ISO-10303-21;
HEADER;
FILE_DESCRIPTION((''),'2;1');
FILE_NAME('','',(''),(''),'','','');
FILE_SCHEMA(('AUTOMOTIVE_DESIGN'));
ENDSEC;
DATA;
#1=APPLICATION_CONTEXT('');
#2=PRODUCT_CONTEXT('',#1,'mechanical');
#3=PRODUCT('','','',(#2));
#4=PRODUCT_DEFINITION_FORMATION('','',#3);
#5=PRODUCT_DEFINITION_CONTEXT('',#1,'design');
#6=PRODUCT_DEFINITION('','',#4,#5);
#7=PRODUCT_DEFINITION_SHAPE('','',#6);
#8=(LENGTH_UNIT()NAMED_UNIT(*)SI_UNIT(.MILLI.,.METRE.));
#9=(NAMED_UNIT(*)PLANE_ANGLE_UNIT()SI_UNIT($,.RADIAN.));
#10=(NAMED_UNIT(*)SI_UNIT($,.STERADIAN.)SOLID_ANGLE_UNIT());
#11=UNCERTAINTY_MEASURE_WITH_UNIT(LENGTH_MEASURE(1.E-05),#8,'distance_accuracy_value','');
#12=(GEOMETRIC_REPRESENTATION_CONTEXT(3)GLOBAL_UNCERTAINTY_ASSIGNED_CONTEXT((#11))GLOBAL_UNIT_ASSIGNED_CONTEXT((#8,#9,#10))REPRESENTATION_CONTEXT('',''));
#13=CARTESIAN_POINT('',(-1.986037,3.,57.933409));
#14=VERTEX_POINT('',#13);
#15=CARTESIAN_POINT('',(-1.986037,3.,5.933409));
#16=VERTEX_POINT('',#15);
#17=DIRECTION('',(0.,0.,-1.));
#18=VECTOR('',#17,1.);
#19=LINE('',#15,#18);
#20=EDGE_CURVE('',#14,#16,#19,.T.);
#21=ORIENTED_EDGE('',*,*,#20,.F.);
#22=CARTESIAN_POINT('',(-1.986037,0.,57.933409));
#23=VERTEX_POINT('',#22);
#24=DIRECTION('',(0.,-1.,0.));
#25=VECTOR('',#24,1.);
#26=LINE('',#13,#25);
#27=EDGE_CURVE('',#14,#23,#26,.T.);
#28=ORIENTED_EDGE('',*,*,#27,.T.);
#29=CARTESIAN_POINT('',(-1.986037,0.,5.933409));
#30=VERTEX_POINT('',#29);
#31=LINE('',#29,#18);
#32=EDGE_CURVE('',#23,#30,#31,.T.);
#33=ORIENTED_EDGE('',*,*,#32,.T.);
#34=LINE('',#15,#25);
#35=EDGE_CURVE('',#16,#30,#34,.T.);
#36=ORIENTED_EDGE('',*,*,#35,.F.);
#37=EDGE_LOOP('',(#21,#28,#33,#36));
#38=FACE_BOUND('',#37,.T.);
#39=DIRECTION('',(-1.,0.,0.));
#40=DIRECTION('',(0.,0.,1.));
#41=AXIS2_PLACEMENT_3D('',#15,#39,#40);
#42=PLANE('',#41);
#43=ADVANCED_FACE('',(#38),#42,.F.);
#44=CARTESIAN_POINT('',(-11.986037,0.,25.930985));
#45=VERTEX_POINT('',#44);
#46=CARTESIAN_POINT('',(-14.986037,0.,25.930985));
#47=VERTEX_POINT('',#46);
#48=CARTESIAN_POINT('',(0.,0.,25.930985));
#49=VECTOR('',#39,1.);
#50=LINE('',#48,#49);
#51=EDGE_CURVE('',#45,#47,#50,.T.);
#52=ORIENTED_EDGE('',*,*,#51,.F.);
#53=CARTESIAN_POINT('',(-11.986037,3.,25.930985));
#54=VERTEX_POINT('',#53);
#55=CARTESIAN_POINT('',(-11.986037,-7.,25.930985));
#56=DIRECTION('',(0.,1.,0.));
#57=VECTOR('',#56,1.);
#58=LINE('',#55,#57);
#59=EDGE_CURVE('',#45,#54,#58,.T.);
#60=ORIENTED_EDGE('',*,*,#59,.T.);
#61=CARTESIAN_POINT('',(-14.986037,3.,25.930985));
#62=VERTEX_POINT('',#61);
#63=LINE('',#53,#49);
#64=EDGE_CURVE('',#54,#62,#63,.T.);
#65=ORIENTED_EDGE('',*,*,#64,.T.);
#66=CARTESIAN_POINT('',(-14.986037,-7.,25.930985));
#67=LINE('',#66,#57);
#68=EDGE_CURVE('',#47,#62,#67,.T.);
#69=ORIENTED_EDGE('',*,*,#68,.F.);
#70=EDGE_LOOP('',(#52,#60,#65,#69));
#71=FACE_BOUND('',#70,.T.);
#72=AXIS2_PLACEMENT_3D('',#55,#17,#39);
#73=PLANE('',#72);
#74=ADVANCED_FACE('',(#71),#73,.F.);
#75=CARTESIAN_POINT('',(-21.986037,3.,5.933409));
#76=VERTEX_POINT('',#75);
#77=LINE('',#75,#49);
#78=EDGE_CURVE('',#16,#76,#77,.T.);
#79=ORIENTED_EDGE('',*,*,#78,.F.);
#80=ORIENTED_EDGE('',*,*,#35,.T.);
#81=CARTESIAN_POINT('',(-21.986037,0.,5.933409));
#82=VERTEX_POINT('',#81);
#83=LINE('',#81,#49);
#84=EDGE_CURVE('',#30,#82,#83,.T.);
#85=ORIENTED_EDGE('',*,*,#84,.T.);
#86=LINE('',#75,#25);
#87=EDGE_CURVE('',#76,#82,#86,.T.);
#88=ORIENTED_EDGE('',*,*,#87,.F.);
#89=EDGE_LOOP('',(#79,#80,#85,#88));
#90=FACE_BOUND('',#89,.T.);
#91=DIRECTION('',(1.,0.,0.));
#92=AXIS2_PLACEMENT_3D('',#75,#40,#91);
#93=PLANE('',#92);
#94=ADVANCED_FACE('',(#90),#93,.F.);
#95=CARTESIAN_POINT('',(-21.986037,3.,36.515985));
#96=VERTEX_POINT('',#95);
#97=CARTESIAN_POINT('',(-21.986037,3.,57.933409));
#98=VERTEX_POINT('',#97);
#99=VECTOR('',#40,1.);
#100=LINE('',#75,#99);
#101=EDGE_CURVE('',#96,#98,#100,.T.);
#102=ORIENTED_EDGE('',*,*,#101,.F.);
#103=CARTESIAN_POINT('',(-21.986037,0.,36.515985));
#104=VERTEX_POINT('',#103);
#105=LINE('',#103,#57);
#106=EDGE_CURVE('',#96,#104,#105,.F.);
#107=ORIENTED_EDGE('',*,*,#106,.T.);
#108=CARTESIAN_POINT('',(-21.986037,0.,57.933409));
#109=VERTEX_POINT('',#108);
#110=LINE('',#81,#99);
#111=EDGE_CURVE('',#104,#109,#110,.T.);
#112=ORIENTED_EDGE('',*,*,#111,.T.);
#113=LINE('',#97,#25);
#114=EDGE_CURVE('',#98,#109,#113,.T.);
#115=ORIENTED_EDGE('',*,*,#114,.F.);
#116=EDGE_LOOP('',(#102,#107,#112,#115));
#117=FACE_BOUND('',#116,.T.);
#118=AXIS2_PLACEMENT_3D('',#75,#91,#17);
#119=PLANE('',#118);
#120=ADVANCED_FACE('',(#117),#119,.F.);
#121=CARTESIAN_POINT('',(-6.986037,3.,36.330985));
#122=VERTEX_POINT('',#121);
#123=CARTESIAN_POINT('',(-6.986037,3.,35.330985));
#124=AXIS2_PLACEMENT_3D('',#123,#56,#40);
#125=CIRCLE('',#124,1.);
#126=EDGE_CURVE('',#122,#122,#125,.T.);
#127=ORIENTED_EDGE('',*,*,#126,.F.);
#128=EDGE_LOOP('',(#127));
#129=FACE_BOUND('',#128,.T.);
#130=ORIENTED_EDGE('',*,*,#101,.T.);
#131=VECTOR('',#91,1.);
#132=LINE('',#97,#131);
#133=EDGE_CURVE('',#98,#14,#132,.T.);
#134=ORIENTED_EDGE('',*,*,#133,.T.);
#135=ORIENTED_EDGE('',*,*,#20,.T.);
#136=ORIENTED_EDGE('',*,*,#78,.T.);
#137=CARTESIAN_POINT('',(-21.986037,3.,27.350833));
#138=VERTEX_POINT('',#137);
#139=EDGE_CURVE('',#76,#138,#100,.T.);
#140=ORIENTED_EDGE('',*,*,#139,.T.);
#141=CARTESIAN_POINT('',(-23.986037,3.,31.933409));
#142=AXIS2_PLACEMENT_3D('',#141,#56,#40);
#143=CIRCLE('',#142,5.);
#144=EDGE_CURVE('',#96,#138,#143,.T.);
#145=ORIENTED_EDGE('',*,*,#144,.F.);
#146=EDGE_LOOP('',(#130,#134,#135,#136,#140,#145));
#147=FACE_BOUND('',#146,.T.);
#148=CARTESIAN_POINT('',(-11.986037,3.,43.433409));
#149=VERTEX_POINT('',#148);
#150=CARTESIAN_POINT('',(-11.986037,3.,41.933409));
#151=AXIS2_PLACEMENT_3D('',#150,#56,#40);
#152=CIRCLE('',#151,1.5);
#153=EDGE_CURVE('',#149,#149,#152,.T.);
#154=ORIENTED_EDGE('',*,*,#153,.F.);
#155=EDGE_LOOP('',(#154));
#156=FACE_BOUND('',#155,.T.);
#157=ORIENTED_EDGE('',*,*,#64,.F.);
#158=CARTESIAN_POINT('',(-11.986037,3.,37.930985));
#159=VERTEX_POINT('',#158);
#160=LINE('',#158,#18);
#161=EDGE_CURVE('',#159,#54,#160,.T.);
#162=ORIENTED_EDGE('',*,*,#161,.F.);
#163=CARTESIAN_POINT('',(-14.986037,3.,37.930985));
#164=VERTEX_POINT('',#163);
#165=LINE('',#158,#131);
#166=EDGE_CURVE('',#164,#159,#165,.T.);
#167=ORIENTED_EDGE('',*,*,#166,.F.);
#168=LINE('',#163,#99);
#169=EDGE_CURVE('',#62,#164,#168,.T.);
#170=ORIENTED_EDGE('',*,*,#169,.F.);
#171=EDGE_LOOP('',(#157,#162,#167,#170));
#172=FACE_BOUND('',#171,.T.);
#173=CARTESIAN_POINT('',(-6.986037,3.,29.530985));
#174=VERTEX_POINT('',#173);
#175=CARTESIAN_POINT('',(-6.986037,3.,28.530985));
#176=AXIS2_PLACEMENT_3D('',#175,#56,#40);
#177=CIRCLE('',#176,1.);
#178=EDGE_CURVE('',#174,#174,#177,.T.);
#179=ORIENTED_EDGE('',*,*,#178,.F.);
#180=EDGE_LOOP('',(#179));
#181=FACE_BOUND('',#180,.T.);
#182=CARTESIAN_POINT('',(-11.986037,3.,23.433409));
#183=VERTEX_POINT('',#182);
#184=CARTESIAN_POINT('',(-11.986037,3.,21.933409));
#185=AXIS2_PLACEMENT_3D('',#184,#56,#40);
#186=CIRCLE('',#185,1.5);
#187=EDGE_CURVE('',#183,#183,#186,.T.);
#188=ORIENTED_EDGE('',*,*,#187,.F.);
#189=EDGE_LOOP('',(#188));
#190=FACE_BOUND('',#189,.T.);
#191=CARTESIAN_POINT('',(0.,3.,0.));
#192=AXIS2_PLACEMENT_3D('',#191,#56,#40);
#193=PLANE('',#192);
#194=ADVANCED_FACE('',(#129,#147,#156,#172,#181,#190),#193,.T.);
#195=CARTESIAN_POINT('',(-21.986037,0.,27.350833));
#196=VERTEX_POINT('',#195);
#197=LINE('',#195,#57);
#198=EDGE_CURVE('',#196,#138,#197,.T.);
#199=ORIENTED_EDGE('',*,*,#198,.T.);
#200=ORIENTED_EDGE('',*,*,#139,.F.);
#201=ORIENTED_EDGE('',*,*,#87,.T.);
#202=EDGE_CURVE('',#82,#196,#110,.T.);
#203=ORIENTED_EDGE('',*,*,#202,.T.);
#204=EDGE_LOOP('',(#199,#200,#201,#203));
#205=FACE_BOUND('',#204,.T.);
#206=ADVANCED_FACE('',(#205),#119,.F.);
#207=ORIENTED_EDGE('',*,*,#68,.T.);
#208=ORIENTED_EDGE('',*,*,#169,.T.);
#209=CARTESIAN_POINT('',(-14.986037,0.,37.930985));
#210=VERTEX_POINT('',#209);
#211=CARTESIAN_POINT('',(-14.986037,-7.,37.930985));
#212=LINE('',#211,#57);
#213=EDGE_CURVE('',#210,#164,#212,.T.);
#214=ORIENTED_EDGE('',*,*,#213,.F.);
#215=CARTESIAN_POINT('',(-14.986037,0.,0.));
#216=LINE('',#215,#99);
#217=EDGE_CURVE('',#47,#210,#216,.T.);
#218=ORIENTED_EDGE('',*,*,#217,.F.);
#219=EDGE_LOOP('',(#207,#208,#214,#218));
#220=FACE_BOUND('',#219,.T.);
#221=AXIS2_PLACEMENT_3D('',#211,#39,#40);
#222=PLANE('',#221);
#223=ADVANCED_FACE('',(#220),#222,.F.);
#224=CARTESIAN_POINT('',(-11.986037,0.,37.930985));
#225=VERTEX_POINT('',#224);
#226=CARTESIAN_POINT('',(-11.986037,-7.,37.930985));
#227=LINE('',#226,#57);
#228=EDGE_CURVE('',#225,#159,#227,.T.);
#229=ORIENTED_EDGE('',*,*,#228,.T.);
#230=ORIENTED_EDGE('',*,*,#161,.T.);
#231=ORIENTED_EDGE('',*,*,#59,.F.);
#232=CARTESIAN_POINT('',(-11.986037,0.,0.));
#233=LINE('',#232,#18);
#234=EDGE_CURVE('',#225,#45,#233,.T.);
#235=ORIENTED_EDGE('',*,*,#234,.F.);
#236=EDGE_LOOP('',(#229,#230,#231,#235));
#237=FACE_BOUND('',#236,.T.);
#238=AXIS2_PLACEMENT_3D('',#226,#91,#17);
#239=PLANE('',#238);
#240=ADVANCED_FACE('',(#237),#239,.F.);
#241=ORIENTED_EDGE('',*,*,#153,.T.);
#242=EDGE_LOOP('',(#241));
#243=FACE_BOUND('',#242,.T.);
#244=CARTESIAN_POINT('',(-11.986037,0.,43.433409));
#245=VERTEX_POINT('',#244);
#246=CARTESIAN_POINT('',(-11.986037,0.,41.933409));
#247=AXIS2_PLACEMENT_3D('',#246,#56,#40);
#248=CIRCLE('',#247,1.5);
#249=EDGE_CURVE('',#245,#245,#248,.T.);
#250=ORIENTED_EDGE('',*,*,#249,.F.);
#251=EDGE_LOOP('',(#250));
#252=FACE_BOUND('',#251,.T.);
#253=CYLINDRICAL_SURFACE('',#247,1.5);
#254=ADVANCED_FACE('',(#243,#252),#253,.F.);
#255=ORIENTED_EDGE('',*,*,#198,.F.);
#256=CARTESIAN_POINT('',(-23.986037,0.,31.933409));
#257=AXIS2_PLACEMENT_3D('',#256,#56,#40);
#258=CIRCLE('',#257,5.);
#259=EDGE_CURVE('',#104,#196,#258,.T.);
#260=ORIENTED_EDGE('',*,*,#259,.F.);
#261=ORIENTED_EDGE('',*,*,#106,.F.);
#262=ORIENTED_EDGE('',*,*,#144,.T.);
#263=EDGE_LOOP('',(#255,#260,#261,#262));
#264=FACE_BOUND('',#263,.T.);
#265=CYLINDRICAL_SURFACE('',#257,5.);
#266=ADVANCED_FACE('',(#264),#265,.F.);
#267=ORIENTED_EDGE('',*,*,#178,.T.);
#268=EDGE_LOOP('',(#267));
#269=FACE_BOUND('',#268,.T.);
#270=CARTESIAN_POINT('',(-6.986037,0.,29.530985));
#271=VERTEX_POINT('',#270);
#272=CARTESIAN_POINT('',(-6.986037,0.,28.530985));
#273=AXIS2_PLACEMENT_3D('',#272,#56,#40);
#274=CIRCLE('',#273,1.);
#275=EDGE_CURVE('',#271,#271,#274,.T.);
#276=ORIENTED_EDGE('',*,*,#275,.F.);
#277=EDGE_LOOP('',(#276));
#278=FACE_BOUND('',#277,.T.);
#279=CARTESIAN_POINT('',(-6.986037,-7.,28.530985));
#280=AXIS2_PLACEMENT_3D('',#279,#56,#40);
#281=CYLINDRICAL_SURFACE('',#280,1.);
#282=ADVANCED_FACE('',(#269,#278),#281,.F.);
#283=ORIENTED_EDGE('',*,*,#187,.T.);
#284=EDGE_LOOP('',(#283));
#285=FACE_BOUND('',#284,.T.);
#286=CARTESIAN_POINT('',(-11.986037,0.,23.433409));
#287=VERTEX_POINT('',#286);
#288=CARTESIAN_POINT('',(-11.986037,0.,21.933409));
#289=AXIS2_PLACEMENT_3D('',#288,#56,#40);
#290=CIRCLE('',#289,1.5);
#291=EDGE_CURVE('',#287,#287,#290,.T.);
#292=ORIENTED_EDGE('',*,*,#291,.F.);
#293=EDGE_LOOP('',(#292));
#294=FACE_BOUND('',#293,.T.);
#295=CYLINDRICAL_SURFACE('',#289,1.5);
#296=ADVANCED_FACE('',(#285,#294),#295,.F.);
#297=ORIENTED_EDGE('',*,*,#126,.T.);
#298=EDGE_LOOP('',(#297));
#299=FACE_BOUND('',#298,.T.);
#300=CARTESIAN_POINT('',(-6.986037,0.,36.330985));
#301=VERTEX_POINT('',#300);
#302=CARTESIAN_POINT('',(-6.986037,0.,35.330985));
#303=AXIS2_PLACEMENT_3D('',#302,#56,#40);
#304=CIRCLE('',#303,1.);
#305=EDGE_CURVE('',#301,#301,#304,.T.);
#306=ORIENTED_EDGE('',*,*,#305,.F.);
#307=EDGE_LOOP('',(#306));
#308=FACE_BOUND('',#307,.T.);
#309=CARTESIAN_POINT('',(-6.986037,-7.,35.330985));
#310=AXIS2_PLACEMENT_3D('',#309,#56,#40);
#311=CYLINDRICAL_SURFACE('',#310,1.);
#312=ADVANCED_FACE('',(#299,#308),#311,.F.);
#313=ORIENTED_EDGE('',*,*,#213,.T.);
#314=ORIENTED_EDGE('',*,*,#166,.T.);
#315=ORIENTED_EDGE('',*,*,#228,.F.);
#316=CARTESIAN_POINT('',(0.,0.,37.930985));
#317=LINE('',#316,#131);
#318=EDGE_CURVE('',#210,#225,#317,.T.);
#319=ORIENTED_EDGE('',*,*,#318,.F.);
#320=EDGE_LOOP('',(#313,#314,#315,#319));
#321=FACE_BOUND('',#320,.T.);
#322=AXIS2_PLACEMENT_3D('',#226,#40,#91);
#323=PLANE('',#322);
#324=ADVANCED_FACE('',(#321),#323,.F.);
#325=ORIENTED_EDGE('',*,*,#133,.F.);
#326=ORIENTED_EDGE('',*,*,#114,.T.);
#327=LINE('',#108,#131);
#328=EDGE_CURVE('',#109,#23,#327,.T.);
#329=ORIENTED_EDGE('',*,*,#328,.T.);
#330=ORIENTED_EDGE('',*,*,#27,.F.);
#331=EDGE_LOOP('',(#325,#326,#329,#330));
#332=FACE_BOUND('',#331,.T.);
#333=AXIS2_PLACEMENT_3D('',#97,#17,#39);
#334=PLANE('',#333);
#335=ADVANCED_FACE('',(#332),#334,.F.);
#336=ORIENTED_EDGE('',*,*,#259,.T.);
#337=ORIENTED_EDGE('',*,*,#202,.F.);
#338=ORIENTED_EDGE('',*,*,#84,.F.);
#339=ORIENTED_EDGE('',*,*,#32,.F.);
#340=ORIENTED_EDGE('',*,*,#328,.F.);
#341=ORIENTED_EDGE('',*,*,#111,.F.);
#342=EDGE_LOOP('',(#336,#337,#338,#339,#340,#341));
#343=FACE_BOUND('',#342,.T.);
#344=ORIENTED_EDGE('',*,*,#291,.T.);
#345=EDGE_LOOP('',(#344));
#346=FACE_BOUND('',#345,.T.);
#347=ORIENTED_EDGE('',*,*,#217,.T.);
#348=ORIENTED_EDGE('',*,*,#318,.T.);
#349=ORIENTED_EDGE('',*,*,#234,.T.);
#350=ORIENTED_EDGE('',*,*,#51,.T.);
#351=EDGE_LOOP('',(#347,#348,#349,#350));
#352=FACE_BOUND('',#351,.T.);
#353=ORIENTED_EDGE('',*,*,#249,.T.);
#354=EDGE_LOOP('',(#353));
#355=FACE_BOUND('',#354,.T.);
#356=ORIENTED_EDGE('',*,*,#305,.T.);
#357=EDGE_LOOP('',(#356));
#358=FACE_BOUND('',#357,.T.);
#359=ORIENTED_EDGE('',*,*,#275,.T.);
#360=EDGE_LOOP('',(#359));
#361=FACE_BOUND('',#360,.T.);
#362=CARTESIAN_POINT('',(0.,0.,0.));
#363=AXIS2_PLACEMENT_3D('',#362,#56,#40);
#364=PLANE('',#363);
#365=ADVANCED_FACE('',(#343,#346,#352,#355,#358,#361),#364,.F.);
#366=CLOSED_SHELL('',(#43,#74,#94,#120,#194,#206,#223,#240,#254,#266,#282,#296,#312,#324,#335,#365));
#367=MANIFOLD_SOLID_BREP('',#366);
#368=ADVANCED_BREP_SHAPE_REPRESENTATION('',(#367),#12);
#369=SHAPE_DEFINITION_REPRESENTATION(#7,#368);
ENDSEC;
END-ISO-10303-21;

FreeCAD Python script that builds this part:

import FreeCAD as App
import Part
import Sketcher


def add_polygon(sketch, points):
    """Adds a closed chain of lines whose ends are joined by coincident constraints."""
    first, n = sketch.GeometryCount, len(points)
    for a, b in zip(points, points[1:] + points[:1]):
        sketch.addGeometry(Part.LineSegment(App.Vector(*a, 0), App.Vector(*b, 0)), False)
    for i in range(n):
        sketch.addConstraint(Sketcher.Constraint("Coincident", first + i, 2, first + (i + 1) % n, 1))

doc = App.newDocument("Part")
body = doc.addObject("PartDesign::Body", "Body")

# Sketch on XZ plane
sketch1 = body.newObject("Sketcher::SketchObject", "Sketch")
sketch1.AttachmentSupport = (doc.getObject("XZ_Plane"), [""])
sketch1.MapMode = "FlatFace"
add_polygon(sketch1, [(-22, 6), (-22, 58), (-2, 58), (-2, 6)])  # lines 0-3
sketch1.addConstraint([
    Sketcher.Constraint("Vertical", 0),
    Sketcher.Constraint("Horizontal", 1),
    Sketcher.Constraint("Vertical", 2),
    Sketcher.Constraint("Horizontal", 3),
    Sketcher.Constraint("DistanceX", 1, 1, 1, 2, 20.0),
    Sketcher.Constraint("DistanceY", 0, 1, 0, 2, 52.0),
    Sketcher.Constraint("DistanceY", -1, 1, 0, 2, 57.933409),
    Sketcher.Constraint("DistanceX", 0, 2, -1, 1, 21.986037),
])
pad1 = body.newObject("PartDesign::Pad", "Pad")
pad1.Profile = sketch1
pad1.Length = 3
pad1.Reversed = True

# Sketch on XZ plane
sketch2 = body.newObject("Sketcher::SketchObject", "Sketch001")
sketch2.AttachmentSupport = (doc.getObject("XZ_Plane"), [""])
sketch2.MapMode = "FlatFace"
sketch2.AttachmentOffset = App.Placement(App.Vector(0, 0, -3), App.Rotation())
sketch2.addGeometry([
    Part.Circle(App.Vector(-12, 41.9, 0), App.Vector(0, 0, 1), 1.5),
    Part.Circle(App.Vector(-12, 21.9, 0), App.Vector(0, 0, 1), 1.5),
], False)
sketch2.addConstraint([
    Sketcher.Constraint("Equal", 0, 1),
    Sketcher.Constraint("Vertical", 0, 3, 1, 3),
    Sketcher.Constraint("Diameter", 0, 3.0),
    Sketcher.Constraint("DistanceY", 1, 3, 0, 3, 20.0),
    Sketcher.Constraint("DistanceY", -1, 1, 0, 3, 41.933409),
    Sketcher.Constraint("DistanceX", 0, 3, -1, 1, 11.986037),
])
pocket1 = body.newObject("PartDesign::Pocket", "Pocket")
pocket1.Profile = sketch2
pocket1.Length = 3
pocket1.Reversed = True

# Sketch on XZ plane
sketch3 = body.newObject("Sketcher::SketchObject", "Sketch002")
sketch3.AttachmentSupport = (doc.getObject("XZ_Plane"), [""])
sketch3.MapMode = "FlatFace"
sketch3.AttachmentOffset = App.Placement(App.Vector(0, 0, -3), App.Rotation())
sketch3.addGeometry(Part.Circle(App.Vector(-24, 32, 0), App.Vector(0, 0, 1), 5), False)
sketch3.addConstraint([
    Sketcher.Constraint("Diameter", 0, 10.0),
    Sketcher.Constraint("DistanceY", -1, 1, 0, 3, 31.933409),
    Sketcher.Constraint("DistanceX", 0, 3, -1, 1, 23.986037),
])
pocket2 = body.newObject("PartDesign::Pocket", "Pocket001")
pocket2.Profile = sketch3
pocket2.Length = 3
pocket2.Reversed = True

# Sketch on XZ plane
sketch4 = body.newObject("Sketcher::SketchObject", "Sketch003")
sketch4.AttachmentSupport = (doc.getObject("XZ_Plane"), [""])
sketch4.MapMode = "FlatFace"
sketch4.AttachmentOffset = App.Placement(App.Vector(0, 0, -3), App.Rotation())
add_polygon(sketch4, [(-15, 25.9), (-15, 37.9), (-12, 37.9), (-12, 25.9)])  # lines 0-3
sketch4.addConstraint([
    Sketcher.Constraint("Vertical", 0),
    Sketcher.Constraint("Horizontal", 1),
    Sketcher.Constraint("Vertical", 2),
    Sketcher.Constraint("Horizontal", 3),
    Sketcher.Constraint("DistanceX", 1, 1, 1, 2, 3.0),
    Sketcher.Constraint("DistanceY", 0, 1, 0, 2, 12.0),
    Sketcher.Constraint("DistanceX", 0, 2, -1, 1, 14.986037),
    Sketcher.Constraint("DistanceY", -1, 1, 0, 2, 37.930985),
])
pocket3 = body.newObject("PartDesign::Pocket", "Pocket002")
pocket3.Profile = sketch4
pocket3.Length = 10
pocket3.Reversed = True

# Sketch on XZ plane
sketch5 = body.newObject("Sketcher::SketchObject", "Sketch004")
sketch5.AttachmentSupport = (doc.getObject("XZ_Plane"), [""])
sketch5.MapMode = "FlatFace"
sketch5.AttachmentOffset = App.Placement(App.Vector(0, 0, -3), App.Rotation())
sketch5.addGeometry([
    Part.Circle(App.Vector(-7, 35.3, 0), App.Vector(0, 0, 1), 1),
    Part.Circle(App.Vector(-7, 28.5, 0), App.Vector(0, 0, 1), 1),
], False)
sketch5.addConstraint([
    Sketcher.Constraint("Equal", 0, 1),
    Sketcher.Constraint("Vertical", 0, 3, 1, 3),
    Sketcher.Constraint("Diameter", 0, 2.0),
    Sketcher.Constraint("DistanceY", 1, 3, 0, 3, 6.8),
    Sketcher.Constraint("DistanceX", 0, 3, -1, 1, 6.986037),
    Sketcher.Constraint("DistanceY", -1, 1, 0, 3, 35.330985),
])
pocket4 = body.newObject("PartDesign::Pocket", "Pocket003")
pocket4.Profile = sketch5
pocket4.Length = 10
pocket4.Reversed = True

doc.recompute()
